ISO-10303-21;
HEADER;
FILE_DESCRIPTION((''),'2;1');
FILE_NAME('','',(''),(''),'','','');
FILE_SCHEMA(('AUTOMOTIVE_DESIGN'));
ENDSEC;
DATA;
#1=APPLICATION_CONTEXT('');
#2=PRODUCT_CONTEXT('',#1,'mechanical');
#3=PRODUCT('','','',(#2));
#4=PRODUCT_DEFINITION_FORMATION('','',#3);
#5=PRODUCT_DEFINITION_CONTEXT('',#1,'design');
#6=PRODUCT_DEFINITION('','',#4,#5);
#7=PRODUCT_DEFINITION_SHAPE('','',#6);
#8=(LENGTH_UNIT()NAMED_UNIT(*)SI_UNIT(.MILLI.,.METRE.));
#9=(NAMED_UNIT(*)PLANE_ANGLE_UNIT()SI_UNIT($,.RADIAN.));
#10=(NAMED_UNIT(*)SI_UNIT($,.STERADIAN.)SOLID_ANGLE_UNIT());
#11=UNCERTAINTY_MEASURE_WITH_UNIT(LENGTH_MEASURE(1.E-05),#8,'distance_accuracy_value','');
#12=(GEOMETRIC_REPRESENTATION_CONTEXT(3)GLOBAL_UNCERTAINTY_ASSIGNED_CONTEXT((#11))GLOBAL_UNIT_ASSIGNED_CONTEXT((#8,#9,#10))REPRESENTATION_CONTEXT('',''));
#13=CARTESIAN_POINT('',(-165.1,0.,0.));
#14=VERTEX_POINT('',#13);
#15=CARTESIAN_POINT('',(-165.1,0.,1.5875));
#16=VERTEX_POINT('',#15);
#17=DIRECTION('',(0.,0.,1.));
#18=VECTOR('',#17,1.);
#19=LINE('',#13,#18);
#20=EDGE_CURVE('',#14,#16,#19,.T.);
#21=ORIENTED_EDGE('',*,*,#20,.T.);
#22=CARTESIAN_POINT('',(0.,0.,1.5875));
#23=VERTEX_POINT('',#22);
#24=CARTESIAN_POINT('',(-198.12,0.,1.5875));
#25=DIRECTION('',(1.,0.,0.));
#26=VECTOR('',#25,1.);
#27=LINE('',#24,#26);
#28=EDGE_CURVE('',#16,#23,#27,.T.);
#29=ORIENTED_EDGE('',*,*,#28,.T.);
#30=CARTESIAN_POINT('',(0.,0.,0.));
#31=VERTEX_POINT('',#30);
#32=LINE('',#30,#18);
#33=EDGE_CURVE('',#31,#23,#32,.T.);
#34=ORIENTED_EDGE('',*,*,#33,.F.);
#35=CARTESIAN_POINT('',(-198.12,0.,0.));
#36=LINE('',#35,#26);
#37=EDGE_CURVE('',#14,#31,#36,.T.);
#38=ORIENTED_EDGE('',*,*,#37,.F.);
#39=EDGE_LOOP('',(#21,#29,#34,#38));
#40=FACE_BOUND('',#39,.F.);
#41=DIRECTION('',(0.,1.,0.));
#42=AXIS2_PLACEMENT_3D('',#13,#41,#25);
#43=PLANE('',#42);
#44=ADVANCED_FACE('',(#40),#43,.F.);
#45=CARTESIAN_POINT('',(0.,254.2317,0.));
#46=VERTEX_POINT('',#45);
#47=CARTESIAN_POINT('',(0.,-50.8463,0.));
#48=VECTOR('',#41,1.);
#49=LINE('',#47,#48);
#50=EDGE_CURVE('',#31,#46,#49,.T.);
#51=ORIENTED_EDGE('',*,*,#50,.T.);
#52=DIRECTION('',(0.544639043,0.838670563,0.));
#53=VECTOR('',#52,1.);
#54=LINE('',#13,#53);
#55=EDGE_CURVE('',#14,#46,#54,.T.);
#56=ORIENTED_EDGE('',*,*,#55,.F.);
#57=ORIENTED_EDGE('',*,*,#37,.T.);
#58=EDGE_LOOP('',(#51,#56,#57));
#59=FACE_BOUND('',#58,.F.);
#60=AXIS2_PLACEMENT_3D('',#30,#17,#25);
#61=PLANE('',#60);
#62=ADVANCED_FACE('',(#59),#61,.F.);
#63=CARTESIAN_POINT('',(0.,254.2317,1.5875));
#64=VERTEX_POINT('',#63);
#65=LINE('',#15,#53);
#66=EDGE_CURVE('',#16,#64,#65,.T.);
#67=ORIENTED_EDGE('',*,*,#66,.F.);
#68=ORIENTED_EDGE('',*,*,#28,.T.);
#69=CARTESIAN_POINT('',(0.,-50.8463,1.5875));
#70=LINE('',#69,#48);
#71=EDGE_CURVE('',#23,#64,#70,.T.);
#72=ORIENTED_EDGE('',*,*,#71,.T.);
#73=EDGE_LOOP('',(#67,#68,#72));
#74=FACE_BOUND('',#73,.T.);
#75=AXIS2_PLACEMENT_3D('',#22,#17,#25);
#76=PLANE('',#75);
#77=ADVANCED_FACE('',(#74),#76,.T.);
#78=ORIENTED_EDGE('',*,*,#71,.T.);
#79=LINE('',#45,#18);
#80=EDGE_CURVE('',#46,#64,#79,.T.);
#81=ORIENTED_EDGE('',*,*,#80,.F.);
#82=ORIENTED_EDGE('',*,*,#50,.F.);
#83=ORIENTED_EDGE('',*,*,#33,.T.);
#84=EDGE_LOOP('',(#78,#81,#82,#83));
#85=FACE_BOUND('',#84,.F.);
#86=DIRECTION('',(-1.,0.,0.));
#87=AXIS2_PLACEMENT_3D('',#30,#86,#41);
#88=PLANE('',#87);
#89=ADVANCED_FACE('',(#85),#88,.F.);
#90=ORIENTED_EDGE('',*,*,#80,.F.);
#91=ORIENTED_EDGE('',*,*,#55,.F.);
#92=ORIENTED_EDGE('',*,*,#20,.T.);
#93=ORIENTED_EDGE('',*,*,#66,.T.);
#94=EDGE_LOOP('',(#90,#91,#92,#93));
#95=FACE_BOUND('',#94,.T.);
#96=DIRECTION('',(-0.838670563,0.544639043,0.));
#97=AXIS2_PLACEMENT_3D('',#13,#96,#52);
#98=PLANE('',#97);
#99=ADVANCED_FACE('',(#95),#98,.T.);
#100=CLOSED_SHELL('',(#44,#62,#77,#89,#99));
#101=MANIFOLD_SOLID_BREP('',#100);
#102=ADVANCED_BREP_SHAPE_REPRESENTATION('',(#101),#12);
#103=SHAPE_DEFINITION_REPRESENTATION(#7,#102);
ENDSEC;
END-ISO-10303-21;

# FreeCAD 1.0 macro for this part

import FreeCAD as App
import Part
import Sketcher

V = App.Vector
Q = App.Units.Quantity


def add_polygon(sketch, points):
    """Adds a closed chain of lines whose ends are joined by coincident constraints."""
    first, n = sketch.GeometryCount, len(points)
    for a, b in zip(points, points[1:] + points[:1]):
        sketch.addGeometry(Part.LineSegment(App.Vector(*a, 0), App.Vector(*b, 0)), False)
    for i in range(n):
        sketch.addConstraint(Sketcher.Constraint("Coincident", first + i, 2, first + (i + 1) % n, 1))

doc = App.newDocument("Part")
body = doc.addObject("PartDesign::Body", "Body")

# Sketch on XY plane
sketch1 = body.newObject("Sketcher::SketchObject", "Sketch")
sketch1.AttachmentSupport = (doc.getObject("XY_Plane"), [""])
sketch1.MapMode = "FlatFace"
add_polygon(sketch1, [(0, 254), (-165, 0), (0, 0)])  # lines 0-2
sketch1.addConstraint(Sketcher.Constraint("Horizontal", 1))
sketch1.addConstraint(Sketcher.Constraint("Vertical", 2))
sketch1.addConstraint(Sketcher.Constraint("Coincident", 1, 2, -1, 1))
sketch1.addConstraint(Sketcher.Constraint("DistanceX", 1, 1, 1, 2, Q("6.5 in")))
sketch1.addConstraint(Sketcher.Constraint("Angle", 0, Q("-123 deg")))
pad1 = body.newObject("PartDesign::Pad", "Pad")
pad1.Profile = sketch1
pad1.Length = Q("0.0625 in")

doc.recompute()
